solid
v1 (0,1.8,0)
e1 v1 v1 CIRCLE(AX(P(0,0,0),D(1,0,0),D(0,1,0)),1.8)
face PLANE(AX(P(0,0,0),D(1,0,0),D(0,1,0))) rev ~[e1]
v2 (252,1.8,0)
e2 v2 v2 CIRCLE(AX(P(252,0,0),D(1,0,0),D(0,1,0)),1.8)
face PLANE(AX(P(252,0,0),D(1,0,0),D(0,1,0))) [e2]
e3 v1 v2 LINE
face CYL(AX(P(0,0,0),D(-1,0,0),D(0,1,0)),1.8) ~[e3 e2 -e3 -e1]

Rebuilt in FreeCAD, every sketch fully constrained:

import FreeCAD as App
import Part
import Sketcher
Q = App.Units.Quantity

doc = App.newDocument("Part")
body = doc.addObject("PartDesign::Body", "Body")

sketch1 = doc.addObject("Sketcher::SketchObject", "Sketch")
body.addObject(sketch1)
sketch1.AttachmentSupport = (doc.YZ_Plane, [""])
sketch1.MapMode = "FlatFace"
sketch1.addGeometry(Part.Circle(App.Vector(0, 0, 0), App.Vector(0, 0, 1), 1.8), False)
sketch1.addConstraint([
    Sketcher.Constraint("Coincident", 0, 3, -1, 1),
    Sketcher.Constraint("Diameter", 0, Q("3.6 mm")),
])
pad1 = doc.addObject("PartDesign::Pad", "Pad")
body.addObject(pad1)
pad1.Profile = sketch1
pad1.Length = 252

doc.recompute()
